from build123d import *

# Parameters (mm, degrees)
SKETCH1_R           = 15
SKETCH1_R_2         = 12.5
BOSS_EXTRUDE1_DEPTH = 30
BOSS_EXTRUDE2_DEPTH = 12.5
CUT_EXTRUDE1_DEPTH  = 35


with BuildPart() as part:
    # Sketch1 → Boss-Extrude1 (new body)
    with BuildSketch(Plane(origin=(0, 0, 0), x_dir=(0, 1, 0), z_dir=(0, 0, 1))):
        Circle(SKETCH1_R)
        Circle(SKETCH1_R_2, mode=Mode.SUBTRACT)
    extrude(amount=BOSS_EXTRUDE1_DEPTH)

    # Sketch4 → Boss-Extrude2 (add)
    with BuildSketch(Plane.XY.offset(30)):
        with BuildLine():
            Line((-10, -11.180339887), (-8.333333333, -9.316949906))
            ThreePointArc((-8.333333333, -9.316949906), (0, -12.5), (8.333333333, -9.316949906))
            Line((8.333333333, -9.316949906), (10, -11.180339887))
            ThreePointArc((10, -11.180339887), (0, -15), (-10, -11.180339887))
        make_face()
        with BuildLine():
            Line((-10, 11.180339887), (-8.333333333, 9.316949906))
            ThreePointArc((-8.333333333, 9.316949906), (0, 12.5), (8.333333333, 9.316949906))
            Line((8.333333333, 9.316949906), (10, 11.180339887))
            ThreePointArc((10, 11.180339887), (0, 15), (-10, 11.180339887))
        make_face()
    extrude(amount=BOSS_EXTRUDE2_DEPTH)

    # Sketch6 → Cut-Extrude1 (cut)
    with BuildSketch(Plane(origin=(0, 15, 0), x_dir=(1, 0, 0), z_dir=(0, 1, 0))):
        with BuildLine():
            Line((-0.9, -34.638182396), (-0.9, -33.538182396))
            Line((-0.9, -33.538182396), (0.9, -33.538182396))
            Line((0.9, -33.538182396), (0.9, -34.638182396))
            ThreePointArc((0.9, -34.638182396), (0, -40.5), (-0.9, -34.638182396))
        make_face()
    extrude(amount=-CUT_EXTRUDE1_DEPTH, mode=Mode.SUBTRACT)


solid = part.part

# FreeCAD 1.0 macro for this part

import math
import FreeCAD as App
import Part
import Sketcher

doc = App.newDocument("Part")
params = doc.addObject("Spreadsheet::Sheet", "Params")
for row, (alias, value) in enumerate([
    ("sketch1_diameter", "30 mm"),
    ("sketch1_diameter2", "25 mm"),
    ("pad1_length", "30 mm"),
    ("sketch2_radius", "15 mm"),
    ("sketch2_radius2", "12.5 mm"),
    ("pad2_length", "12.5 mm"),
    ("sketch3_radius", "3 mm"),
    ("sketch3_width", "1.8 mm"),
    ("sketch3_height", "1.1 mm"),
    ("pocket1_length", "35 mm"),
], start=1):
    params.set(f"A{row}", alias)
    params.set(f"B{row}", "=" + value)
    params.setAlias(f"B{row}", alias)

body = doc.addObject("PartDesign::Body", "Body")

# Sketch on XY plane
sketch1 = body.newObject("Sketcher::SketchObject", "Sketch")
sketch1.AttachmentSupport = (doc.getObject("XY_Plane"), [""])
sketch1.MapMode = "FlatFace"
sketch1.addGeometry([
    Part.Circle(App.Vector(0, 0, 0), App.Vector(0, 0, 1), 15),
    Part.Circle(App.Vector(0, 0, 0), App.Vector(0, 0, 1), 12),
], False)
sketch1.addConstraint([
    Sketcher.Constraint("Coincident", 0, 3, -1, 1),
    Sketcher.Constraint("Coincident", 1, 3, -1, 1),
    Sketcher.Constraint("Diameter", 0, 30.0),
    Sketcher.Constraint("Diameter", 1, 25.0),
])
sketch1.setExpression("Constraints[2]", "Params.sketch1_diameter")
sketch1.setExpression("Constraints[3]", "Params.sketch1_diameter2")
pad1 = body.newObject("PartDesign::Pad", "Pad")
pad1.Profile = sketch1
pad1.setExpression("Length", "Params.pad1_length")

# Sketch on XY plane
sketch2 = body.newObject("Sketcher::SketchObject", "Sketch001")
sketch2.AttachmentSupport = (doc.getObject("XY_Plane"), [""])
sketch2.MapMode = "FlatFace"
sketch2.AttachmentOffset = App.Placement(App.Vector(0, 0, 30), App.Rotation())
sketch2.addGeometry([
    Part.LineSegment(App.Vector(-8.3, -9.3, 0), App.Vector(-10, -11.2, 0)),  # 0
    Part.ArcOfCircle(Part.Circle(App.Vector(0, 0, 0), App.Vector(0, 0, 1), 15), math.radians(-132), math.radians(-48)),  # 1
    Part.LineSegment(App.Vector(10, -11.2, 0), App.Vector(8.3, -9.3, 0)),  # 2
    Part.ArcOfCircle(Part.Circle(App.Vector(0, 0, 0), App.Vector(0, 0, 1), 12.5), math.radians(-132), math.radians(-48)),  # 3
    Part.LineSegment(App.Vector(-10, 11.2, 0), App.Vector(-8.3, 9.3, 0)),  # 4
    Part.ArcOfCircle(Part.Circle(App.Vector(0, 0, 0), App.Vector(0, 0, 1), 12.5), math.radians(48), math.radians(132)),  # 5
    Part.LineSegment(App.Vector(8.3, 9.3, 0), App.Vector(10, 11.2, 0)),  # 6
    Part.ArcOfCircle(Part.Circle(App.Vector(0, 0, 0), App.Vector(0, 0, 1), 15), math.radians(48), math.radians(132)),  # 7
], False)
sketch2.addConstraint([
    Sketcher.Constraint("Coincident", 0, 2, 1, 1),
    Sketcher.Constraint("Coincident", 1, 2, 2, 1),
    Sketcher.Constraint("Coincident", 2, 2, 3, 2),
    Sketcher.Constraint("Coincident", 3, 1, 0, 1),
    Sketcher.Constraint("Coincident", 4, 2, 5, 2),
    Sketcher.Constraint("Coincident", 5, 1, 6, 1),
    Sketcher.Constraint("Coincident", 6, 2, 7, 1),
    Sketcher.Constraint("Coincident", 7, 2, 4, 1),
    Sketcher.Constraint("Coincident", 1, 3, -1, 1),
    Sketcher.Constraint("Coincident", 3, 3, -1, 1),
    Sketcher.Constraint("Coincident", 5, 3, -1, 1),
    Sketcher.Constraint("Coincident", 7, 3, -1, 1),
    Sketcher.Constraint("Equal", 3, 5),
    Sketcher.Constraint("Equal", 1, 7),
    Sketcher.Constraint("Parallel", 2, 4),
    Sketcher.Constraint("Parallel", 0, 6),
    Sketcher.Constraint("Horizontal", 0, 2, 1, 2),
    Sketcher.Constraint("Horizontal", 2, 2, 3, 1),
    Sketcher.Constraint("Horizontal", 4, 2, 5, 1),
    Sketcher.Constraint("Vertical", 3, 1, 4, 2),
    Sketcher.Constraint("Radius", 1, 15.0),
    Sketcher.Constraint("Radius", 3, 12.5),
    Sketcher.Constraint("DistanceX", 0, 2, -1, 1, 10.0),
    Sketcher.Constraint("DistanceY", 3, 1, 4, 2, 18.6339),
])
sketch2.setExpression("Constraints[20]", "Params.sketch2_radius")
sketch2.setExpression("Constraints[21]", "Params.sketch2_radius2")
pad2 = body.newObject("PartDesign::Pad", "Pad001")
pad2.Profile = sketch2
pad2.setExpression("Length", "Params.pad2_length")

# Sketch on XZ plane
sketch3 = body.newObject("Sketcher::SketchObject", "Sketch002")
sketch3.AttachmentSupport = (doc.getObject("XZ_Plane"), [""])
sketch3.MapMode = "FlatFace"
sketch3.AttachmentOffset = App.Placement(App.Vector(0, 0, -15), App.Rotation())
sketch3.addGeometry([
    Part.LineSegment(App.Vector(-0.9, 33.5, 0), App.Vector(-0.9, 34.6, 0)),
    Part.ArcOfCircle(Part.Circle(App.Vector(0, 37.5, 0), App.Vector(0, 0, 1), 3), math.radians(-73), math.radians(253)),
    Part.LineSegment(App.Vector(0.9, 34.6, 0), App.Vector(0.9, 33.5, 0)),
    Part.LineSegment(App.Vector(0.9, 33.5, 0), App.Vector(-0.9, 33.5, 0)),
], False)
sketch3.addConstraint([
    Sketcher.Constraint("Coincident", 0, 2, 1, 2),
    Sketcher.Constraint("Coincident", 1, 1, 2, 1),
    Sketcher.Constraint("Coincident", 2, 2, 3, 1),
    Sketcher.Constraint("Coincident", 3, 2, 0, 1),
    Sketcher.Constraint("Vertical", 0),
    Sketcher.Constraint("Vertical", 2),
    Sketcher.Constraint("Horizontal", 3),
    Sketcher.Constraint("Symmetric", 0, 2, 1, 1, -2),
    Sketcher.Constraint("Radius", 1, 3.0),
    Sketcher.Constraint("DistanceX", 3, 2, 3, 1, 1.8),
    Sketcher.Constraint("DistanceY", 0, 1, 0, 2, 1.1),
    Sketcher.Constraint("DistanceY", -1, 1, 1, 3, 37.5),
])
sketch3.setExpression("Constraints[8]", "Params.sketch3_radius")
sketch3.setExpression("Constraints[9]", "Params.sketch3_width")
sketch3.setExpression("Constraints[10]", "Params.sketch3_height")
pocket1 = body.newObject("PartDesign::Pocket", "Pocket")
pocket1.Profile = sketch3
pocket1.setExpression("Length", "Params.pocket1_length")
pocket1.Reversed = True

doc.recompute()
